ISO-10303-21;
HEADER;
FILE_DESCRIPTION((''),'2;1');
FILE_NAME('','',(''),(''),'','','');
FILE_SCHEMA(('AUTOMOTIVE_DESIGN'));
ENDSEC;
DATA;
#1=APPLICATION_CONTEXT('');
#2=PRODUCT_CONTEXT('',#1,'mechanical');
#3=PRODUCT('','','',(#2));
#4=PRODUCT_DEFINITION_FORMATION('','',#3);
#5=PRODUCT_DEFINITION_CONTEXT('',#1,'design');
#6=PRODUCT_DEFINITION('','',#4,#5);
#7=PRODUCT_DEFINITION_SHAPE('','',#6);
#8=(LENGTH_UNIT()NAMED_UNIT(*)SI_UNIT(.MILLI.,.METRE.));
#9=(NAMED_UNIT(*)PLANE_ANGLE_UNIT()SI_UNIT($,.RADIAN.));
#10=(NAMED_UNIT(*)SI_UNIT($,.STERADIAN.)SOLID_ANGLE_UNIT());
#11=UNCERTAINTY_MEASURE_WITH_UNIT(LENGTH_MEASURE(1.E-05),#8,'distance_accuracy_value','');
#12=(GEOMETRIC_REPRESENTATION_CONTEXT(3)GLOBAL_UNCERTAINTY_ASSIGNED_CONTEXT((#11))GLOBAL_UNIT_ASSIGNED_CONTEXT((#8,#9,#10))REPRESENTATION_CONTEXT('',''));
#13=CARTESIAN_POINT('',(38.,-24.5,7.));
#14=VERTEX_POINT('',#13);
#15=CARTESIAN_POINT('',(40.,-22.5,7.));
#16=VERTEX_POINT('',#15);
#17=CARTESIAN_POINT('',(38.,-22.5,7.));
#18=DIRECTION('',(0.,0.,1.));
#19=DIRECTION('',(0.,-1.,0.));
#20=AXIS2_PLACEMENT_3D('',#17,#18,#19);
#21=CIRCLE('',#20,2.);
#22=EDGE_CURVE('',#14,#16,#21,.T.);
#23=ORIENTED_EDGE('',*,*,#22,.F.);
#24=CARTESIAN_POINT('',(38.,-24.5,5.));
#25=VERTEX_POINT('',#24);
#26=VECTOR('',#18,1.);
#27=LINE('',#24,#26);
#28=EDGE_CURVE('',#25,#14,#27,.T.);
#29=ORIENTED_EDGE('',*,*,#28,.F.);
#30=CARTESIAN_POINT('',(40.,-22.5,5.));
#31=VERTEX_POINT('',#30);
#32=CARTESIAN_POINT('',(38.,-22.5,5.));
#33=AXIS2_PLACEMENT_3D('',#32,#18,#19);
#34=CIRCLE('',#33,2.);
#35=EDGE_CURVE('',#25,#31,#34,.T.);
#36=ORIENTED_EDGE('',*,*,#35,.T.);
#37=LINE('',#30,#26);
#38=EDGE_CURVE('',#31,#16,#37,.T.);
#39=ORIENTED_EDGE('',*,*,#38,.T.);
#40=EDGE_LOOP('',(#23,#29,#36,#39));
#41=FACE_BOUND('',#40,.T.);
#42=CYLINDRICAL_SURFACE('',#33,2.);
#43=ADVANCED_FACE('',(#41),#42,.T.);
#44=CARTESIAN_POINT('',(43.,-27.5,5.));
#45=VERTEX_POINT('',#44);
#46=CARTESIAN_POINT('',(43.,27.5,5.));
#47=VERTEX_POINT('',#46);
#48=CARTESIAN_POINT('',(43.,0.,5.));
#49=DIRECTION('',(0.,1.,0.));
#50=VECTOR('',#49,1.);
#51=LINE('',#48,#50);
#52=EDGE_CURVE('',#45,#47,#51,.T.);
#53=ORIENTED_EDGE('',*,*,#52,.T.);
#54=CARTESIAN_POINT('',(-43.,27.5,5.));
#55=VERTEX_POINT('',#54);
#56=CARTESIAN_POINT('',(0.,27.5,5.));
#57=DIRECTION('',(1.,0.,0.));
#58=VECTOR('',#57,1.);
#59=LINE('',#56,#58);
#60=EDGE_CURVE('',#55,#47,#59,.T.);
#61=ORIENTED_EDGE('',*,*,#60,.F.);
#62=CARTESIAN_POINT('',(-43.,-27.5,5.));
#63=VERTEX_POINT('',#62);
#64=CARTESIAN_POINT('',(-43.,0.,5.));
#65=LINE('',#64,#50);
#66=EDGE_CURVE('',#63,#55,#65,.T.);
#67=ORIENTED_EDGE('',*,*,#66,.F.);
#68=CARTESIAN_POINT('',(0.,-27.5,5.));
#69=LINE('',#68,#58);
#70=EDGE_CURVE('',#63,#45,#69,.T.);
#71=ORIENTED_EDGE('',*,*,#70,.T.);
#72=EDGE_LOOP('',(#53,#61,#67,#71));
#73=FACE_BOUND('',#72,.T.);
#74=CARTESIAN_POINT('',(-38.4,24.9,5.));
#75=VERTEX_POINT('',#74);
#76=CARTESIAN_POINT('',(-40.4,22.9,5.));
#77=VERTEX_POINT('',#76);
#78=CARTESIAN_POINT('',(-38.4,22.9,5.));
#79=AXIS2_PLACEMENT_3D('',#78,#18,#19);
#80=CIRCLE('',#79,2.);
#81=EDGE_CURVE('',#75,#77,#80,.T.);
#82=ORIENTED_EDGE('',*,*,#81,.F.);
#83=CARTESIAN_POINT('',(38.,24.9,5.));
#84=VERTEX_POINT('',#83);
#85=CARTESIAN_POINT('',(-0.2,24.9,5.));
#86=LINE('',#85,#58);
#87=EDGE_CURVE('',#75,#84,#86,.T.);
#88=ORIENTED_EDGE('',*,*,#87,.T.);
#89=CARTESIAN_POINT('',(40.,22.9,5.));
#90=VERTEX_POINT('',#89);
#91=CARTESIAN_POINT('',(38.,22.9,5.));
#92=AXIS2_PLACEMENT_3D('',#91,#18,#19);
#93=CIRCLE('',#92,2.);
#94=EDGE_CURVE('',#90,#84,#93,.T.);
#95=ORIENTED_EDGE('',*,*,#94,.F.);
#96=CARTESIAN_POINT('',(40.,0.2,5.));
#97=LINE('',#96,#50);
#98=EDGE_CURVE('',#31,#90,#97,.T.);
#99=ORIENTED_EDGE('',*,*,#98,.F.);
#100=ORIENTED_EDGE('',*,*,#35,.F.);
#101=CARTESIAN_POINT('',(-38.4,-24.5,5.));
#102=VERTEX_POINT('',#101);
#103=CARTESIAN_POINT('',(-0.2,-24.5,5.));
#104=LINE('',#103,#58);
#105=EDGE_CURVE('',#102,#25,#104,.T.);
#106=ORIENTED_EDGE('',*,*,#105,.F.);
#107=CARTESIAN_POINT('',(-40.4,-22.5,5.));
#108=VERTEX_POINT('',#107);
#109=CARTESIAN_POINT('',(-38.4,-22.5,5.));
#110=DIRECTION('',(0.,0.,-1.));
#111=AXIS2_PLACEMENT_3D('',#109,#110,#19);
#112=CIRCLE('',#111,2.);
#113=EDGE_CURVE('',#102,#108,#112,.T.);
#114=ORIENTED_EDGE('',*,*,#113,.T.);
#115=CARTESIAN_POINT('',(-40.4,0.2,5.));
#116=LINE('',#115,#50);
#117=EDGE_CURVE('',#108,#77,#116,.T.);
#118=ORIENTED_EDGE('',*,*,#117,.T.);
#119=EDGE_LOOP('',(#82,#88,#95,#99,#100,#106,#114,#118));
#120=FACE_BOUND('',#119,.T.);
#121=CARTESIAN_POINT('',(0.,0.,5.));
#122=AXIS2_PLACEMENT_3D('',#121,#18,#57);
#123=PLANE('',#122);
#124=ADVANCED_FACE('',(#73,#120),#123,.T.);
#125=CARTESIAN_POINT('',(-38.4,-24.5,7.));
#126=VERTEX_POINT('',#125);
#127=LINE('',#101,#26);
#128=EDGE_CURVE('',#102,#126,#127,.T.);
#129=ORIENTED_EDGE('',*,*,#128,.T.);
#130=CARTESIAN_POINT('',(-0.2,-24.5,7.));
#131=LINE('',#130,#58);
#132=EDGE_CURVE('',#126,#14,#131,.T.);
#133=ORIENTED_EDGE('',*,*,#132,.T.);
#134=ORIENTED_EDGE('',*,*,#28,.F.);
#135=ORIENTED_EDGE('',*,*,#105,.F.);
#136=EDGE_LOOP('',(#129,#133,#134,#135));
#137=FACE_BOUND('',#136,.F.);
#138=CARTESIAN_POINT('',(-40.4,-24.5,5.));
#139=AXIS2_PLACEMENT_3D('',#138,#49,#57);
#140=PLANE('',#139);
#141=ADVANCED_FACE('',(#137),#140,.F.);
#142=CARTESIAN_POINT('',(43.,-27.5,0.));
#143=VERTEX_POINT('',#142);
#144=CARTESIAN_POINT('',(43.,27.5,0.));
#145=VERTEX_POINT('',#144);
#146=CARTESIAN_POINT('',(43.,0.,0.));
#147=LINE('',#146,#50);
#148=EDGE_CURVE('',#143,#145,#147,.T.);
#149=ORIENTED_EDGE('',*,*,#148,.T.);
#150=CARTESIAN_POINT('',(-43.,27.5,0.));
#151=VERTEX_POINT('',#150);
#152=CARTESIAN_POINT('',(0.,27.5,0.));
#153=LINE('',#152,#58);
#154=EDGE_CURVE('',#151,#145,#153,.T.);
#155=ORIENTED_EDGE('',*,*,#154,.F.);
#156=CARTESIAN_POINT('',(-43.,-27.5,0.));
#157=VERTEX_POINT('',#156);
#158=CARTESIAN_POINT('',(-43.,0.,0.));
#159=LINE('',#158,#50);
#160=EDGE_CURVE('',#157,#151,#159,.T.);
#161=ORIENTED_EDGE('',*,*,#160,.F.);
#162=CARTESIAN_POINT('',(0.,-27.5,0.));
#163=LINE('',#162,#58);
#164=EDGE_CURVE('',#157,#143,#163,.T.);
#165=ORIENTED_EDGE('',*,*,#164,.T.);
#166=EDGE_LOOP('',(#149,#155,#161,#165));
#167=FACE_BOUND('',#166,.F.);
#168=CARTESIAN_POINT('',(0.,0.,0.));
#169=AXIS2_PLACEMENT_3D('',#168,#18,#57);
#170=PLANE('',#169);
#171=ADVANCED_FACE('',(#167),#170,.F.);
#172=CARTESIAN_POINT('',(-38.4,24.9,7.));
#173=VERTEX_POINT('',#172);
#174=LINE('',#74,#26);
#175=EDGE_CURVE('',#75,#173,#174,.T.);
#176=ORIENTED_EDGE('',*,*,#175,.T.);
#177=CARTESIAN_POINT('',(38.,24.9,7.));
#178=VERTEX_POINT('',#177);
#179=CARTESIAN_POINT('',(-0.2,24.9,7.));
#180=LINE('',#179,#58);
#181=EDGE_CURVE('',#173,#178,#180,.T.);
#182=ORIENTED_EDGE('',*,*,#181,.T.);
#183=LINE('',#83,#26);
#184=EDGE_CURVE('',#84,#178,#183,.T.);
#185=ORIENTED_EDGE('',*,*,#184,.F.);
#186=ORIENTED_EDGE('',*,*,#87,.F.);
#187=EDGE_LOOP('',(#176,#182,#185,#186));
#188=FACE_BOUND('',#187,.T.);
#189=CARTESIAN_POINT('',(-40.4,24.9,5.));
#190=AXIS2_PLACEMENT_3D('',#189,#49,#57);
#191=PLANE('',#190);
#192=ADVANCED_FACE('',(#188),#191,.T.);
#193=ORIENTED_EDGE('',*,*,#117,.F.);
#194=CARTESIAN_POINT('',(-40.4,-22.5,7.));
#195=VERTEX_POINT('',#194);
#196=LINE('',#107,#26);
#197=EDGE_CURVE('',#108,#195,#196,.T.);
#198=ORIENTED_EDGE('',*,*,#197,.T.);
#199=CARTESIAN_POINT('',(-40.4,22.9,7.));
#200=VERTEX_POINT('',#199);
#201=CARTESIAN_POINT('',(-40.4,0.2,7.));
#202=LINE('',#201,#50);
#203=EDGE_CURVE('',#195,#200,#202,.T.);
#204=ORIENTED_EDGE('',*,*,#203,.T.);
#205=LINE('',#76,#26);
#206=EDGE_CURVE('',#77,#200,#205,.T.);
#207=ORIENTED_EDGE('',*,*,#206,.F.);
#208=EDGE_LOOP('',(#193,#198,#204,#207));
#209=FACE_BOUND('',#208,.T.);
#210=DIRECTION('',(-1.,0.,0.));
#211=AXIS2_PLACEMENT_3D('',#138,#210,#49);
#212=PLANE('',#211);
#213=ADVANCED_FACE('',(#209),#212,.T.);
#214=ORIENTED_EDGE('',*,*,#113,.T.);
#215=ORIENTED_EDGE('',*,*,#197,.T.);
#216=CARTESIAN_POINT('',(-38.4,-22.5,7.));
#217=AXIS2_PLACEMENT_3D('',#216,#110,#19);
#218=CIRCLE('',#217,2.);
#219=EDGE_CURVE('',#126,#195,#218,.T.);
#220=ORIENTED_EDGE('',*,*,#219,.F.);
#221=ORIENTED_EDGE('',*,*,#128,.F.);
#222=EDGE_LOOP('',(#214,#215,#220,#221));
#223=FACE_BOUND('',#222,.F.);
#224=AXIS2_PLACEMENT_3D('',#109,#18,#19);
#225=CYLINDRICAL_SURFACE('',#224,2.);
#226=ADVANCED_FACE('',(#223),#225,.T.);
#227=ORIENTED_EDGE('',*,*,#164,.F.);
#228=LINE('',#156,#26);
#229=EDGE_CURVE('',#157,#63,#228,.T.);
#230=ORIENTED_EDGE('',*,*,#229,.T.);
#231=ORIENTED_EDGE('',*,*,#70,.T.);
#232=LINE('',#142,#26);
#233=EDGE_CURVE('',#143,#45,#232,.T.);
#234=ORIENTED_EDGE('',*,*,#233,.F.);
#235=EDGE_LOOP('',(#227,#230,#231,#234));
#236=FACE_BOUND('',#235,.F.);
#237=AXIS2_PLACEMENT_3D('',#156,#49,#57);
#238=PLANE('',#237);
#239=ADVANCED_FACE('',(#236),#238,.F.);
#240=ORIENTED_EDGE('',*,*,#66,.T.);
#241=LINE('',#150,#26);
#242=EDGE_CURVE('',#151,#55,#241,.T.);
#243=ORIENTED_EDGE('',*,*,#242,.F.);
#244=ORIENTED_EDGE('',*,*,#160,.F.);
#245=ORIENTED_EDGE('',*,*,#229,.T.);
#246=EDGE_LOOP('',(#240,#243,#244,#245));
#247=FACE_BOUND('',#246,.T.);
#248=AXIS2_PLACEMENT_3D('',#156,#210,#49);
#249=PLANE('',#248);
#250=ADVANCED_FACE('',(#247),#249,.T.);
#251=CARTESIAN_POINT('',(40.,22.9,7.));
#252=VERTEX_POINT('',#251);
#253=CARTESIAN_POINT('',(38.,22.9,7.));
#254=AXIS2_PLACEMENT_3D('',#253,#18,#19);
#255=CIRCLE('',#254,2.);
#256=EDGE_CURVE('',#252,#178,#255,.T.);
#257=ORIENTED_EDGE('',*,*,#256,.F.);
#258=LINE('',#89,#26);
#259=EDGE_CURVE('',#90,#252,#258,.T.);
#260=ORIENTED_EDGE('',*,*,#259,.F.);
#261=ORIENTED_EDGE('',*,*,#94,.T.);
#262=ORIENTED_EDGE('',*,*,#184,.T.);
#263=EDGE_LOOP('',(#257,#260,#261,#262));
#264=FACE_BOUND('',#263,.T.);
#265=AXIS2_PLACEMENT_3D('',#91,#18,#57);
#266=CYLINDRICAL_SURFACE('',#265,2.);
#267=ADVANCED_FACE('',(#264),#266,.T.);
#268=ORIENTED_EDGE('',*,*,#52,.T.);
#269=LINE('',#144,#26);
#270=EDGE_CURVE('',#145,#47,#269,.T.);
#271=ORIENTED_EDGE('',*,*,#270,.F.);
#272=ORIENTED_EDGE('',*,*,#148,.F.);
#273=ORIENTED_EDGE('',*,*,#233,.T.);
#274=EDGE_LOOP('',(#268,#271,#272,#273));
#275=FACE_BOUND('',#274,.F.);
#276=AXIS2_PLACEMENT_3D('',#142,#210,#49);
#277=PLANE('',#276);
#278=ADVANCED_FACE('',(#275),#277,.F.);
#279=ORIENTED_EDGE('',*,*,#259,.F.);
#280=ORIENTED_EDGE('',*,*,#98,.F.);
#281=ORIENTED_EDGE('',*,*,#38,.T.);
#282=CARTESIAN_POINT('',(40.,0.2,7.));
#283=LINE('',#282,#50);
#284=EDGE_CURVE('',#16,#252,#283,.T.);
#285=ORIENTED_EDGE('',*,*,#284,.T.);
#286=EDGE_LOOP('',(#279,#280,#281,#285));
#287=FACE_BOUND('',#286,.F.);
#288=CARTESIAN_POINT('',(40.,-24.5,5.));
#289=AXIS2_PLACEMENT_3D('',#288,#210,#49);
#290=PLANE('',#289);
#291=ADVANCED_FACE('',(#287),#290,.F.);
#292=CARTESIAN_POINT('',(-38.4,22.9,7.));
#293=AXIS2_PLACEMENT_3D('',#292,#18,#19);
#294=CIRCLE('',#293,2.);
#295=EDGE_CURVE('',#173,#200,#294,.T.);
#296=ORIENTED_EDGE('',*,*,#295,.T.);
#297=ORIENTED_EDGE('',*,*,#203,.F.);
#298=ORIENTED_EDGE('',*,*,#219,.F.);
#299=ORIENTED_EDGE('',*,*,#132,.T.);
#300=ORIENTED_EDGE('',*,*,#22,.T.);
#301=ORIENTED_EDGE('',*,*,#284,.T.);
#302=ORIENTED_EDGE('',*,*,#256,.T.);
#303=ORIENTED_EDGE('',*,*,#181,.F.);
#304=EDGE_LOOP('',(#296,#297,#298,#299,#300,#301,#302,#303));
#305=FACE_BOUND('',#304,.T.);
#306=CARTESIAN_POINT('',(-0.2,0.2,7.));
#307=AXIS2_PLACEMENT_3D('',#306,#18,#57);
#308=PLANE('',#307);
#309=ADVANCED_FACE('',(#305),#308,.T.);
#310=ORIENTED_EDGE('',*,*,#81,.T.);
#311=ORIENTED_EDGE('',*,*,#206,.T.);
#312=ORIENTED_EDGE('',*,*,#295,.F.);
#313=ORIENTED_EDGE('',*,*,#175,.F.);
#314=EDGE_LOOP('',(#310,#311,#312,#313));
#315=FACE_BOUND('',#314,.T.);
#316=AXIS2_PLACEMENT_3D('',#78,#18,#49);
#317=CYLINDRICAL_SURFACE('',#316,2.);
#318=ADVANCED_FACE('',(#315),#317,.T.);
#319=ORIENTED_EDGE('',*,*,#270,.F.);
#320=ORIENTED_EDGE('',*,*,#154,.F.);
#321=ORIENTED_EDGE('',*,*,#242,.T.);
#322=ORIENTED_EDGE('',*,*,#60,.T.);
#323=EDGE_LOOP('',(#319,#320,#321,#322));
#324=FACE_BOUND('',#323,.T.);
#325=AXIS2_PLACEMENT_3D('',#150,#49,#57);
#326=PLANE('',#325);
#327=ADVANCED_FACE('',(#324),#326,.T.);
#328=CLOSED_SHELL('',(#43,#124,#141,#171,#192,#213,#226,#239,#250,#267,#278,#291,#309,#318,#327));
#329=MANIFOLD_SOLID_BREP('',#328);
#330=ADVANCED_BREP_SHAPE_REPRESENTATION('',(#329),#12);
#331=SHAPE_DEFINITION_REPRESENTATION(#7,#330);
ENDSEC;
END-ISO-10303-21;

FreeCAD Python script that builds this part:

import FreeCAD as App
import Part
import Sketcher


def edges_at(feature, points):
    """Names of the edges that pass closest to the given points."""
    edges = feature.Shape.Edges
    near = lambda p: min(range(len(edges)), key=lambda i: edges[i].distToShape(Part.Vertex(*p))[0])
    return sorted({f"Edge{near(p) + 1}" for p in points})


def add_polygon(sketch, points):
    """Adds a closed chain of lines whose ends are joined by coincident constraints."""
    first, n = sketch.GeometryCount, len(points)
    for a, b in zip(points, points[1:] + points[:1]):
        sketch.addGeometry(Part.LineSegment(App.Vector(*a, 0), App.Vector(*b, 0)), False)
    for i in range(n):
        sketch.addConstraint(Sketcher.Constraint("Coincident", first + i, 2, first + (i + 1) % n, 1))

doc = App.newDocument("Part")
body = doc.addObject("PartDesign::Body", "Body")

# Sketch on XY plane
sketch1 = doc.addObject("Sketcher::SketchObject", "Sketch")
body.addObject(sketch1)
sketch1.AttachmentSupport = (doc.XY_Plane, [""])
sketch1.MapMode = "FlatFace"
add_polygon(sketch1, [(-43, 27.5), (-43, -27.5), (43, -27.5), (43, 27.5)])  # lines 0-3
sketch1.addConstraint(Sketcher.Constraint("Vertical", 0))
sketch1.addConstraint(Sketcher.Constraint("Horizontal", 1))
sketch1.addConstraint(Sketcher.Constraint("Vertical", 2))
sketch1.addConstraint(Sketcher.Constraint("Horizontal", 3))
sketch1.addConstraint(Sketcher.Constraint("Symmetric", 0, 2, 2, 2, -1, 1))
sketch1.addConstraint(Sketcher.Constraint("DistanceX", 1, 1, 1, 2, 86.0))
sketch1.addConstraint(Sketcher.Constraint("DistanceY", 0, 2, 0, 1, 55.0))
pad1 = doc.addObject("PartDesign::Pad", "Pad")
body.addObject(pad1)
pad1.Profile = sketch1
pad1.Length = 5

# Sketch on XY plane
sketch2 = doc.addObject("Sketcher::SketchObject", "Sketch001")
body.addObject(sketch2)
sketch2.AttachmentSupport = (doc.XY_Plane, [""])
sketch2.MapMode = "FlatFace"
sketch2.AttachmentOffset = App.Placement(App.Vector(0, 0, 5), App.Rotation())
add_polygon(sketch2, [(-40.4, 24.9), (-40.4, -24.5), (40, -24.5), (40, 24.9)])  # lines 0-3
sketch2.addConstraint(Sketcher.Constraint("Vertical", 0))
sketch2.addConstraint(Sketcher.Constraint("Horizontal", 1))
sketch2.addConstraint(Sketcher.Constraint("Vertical", 2))
sketch2.addConstraint(Sketcher.Constraint("Horizontal", 3))
sketch2.addConstraint(Sketcher.Constraint("DistanceX", 1, 1, 1, 2, 80.4))
sketch2.addConstraint(Sketcher.Constraint("DistanceY", 0, 2, 0, 1, 49.4))
sketch2.addConstraint(Sketcher.Constraint("DistanceX", -1, 1, 1, 2, 40.0))
sketch2.addConstraint(Sketcher.Constraint("DistanceY", 0, 2, -1, 1, 24.5))
pad2 = doc.addObject("PartDesign::Pad", "Pad001")
body.addObject(pad2)
pad2.Profile = sketch2
pad2.Length = 2
doc.recompute()

fillet = doc.addObject("PartDesign::Fillet", "Fillet")
body.addObject(fillet)
fillet.Base = (pad2, edges_at(pad2, [
    (-40.4, -24.5, 6),
    (-40.4, 24.9, 6),
    (40, -24.5, 6),
    (40, 24.9, 6),
]))
fillet.Radius = 2

doc.recompute()
